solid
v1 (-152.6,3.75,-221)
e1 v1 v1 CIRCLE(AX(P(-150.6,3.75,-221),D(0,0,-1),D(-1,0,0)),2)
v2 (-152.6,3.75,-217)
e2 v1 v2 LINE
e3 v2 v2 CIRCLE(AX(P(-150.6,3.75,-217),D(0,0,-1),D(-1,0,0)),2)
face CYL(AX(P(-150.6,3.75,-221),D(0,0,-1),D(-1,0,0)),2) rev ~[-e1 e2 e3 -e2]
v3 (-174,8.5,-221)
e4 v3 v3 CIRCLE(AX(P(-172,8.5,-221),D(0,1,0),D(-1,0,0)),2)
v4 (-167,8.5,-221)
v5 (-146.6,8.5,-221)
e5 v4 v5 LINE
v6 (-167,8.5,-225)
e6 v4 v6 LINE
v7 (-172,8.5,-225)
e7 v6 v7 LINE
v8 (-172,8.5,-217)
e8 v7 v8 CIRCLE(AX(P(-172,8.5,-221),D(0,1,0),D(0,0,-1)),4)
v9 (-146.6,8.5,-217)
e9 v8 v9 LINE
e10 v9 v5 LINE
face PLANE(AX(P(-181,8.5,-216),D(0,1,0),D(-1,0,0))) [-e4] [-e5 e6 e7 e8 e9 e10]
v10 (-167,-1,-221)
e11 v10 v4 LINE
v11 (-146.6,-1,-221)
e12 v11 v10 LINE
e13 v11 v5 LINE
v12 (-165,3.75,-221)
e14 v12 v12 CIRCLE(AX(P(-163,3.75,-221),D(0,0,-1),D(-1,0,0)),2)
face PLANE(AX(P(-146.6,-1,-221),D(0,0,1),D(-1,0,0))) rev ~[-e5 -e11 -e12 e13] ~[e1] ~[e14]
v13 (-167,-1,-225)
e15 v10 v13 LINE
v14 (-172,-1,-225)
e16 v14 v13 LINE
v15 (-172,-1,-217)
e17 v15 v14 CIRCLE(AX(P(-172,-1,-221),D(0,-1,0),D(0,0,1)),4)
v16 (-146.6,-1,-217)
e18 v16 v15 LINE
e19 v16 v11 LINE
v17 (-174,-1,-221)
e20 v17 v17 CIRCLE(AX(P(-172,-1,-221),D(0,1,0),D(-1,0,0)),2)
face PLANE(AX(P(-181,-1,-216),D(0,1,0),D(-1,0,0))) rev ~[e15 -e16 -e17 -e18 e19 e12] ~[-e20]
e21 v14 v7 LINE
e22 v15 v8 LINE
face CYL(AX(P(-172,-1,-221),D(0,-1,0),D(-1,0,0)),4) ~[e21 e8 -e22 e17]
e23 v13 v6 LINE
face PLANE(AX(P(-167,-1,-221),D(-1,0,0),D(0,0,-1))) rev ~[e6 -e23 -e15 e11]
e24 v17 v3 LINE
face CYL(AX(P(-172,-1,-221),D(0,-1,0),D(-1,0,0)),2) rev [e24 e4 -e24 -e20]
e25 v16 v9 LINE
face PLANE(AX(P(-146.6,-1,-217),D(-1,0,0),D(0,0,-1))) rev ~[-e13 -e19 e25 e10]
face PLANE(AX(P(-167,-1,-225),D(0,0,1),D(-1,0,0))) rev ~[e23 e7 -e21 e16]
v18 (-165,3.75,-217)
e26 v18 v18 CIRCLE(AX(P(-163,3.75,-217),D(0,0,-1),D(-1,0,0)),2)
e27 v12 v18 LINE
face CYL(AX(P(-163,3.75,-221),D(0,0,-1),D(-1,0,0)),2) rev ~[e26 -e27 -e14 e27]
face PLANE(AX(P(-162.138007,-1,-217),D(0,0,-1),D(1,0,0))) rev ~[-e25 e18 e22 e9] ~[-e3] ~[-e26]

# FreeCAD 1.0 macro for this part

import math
import FreeCAD as App
import Part
import Sketcher
from FreeCAD import Vector

doc = App.newDocument("Part")
body = doc.addObject("PartDesign::Body", "Body")

# Sketch on XZ plane
sketch1 = body.newObject("Sketcher::SketchObject", "Sketch")
sketch1.AttachmentSupport = (doc.getObject("XZ_Plane"), [""])
sketch1.MapMode = "FlatFace"
sketch1.AttachmentOffset = App.Placement(Vector(0, 0, 1), App.Rotation())
sketch1.addGeometry(Part.LineSegment(Vector(-146.6, -221, 0), Vector(-167, -221, 0)), False)
sketch1.addGeometry(Part.LineSegment(Vector(-167, -221, 0), Vector(-167, -225, 0)), False)
sketch1.addGeometry(Part.LineSegment(Vector(-167, -225, 0), Vector(-172, -225, 0)), False)
sketch1.addGeometry(Part.ArcOfCircle(Part.Circle(Vector(-172, -221, 0), Vector(0, 0, 1), 4), math.radians(90), math.radians(270)), False)
sketch1.addGeometry(Part.LineSegment(Vector(-172, -217, 0), Vector(-146.6, -217, 0)), False)
sketch1.addGeometry(Part.LineSegment(Vector(-146.6, -217, 0), Vector(-146.6, -221, 0)), False)
sketch1.addGeometry(Part.Circle(Vector(-172, -221, 0), Vector(0, 0, 1), 2), False)
sketch1.addConstraint(Sketcher.Constraint("Coincident", 0, 2, 1, 1))
sketch1.addConstraint(Sketcher.Constraint("Coincident", 1, 2, 2, 1))
sketch1.addConstraint(Sketcher.Constraint("Tangent", 2, 2, 3, 2))
sketch1.addConstraint(Sketcher.Constraint("Tangent", 3, 1, 4, 1))
sketch1.addConstraint(Sketcher.Constraint("Coincident", 4, 2, 5, 1))
sketch1.addConstraint(Sketcher.Constraint("Coincident", 5, 2, 0, 1))
sketch1.addConstraint(Sketcher.Constraint("Horizontal", 0))
sketch1.addConstraint(Sketcher.Constraint("Vertical", 1))
sketch1.addConstraint(Sketcher.Constraint("Horizontal", 2))
sketch1.addConstraint(Sketcher.Constraint("Horizontal", 4))
sketch1.addConstraint(Sketcher.Constraint("Vertical", 5))
sketch1.addConstraint(Sketcher.Constraint("Coincident", 6, 3, 3, 3))
sketch1.addConstraint(Sketcher.Constraint("Horizontal", 6, 3, 0, 2))
sketch1.addConstraint(Sketcher.Constraint("DistanceX", 2, 2, 2, 1, 5.0))
sketch1.addConstraint(Sketcher.Constraint("Diameter", 6, 4.0))
sketch1.addConstraint(Sketcher.Constraint("DistanceX", 4, 1, 4, 2, 25.4))
sketch1.addConstraint(Sketcher.Constraint("Radius", 3, 4.0))
sketch1.addConstraint(Sketcher.Constraint("DistanceX", 3, 3, -1, 1, 172.0))
sketch1.addConstraint(Sketcher.Constraint("DistanceY", 3, 3, -1, 1, 221.0))
pad1 = body.newObject("PartDesign::Pad", "Pad")
pad1.Profile = sketch1
pad1.Length = 9.5
pad1.Reversed = True

# Sketch on XY plane
sketch2 = body.newObject("Sketcher::SketchObject", "Sketch001")
sketch2.AttachmentSupport = (doc.getObject("XY_Plane"), [""])
sketch2.MapMode = "FlatFace"
sketch2.AttachmentOffset = App.Placement(Vector(0, 0, -221), App.Rotation())
sketch2.addGeometry(Part.Circle(Vector(-150.6, 3.8, 0), Vector(0, 0, 1), 2), False)
sketch2.addGeometry(Part.Circle(Vector(-163, 3.8, 0), Vector(0, 0, 1), 2), False)
sketch2.addConstraint(Sketcher.Constraint("Equal", 0, 1))
sketch2.addConstraint(Sketcher.Constraint("Horizontal", 0, 3, 1, 3))
sketch2.addConstraint(Sketcher.Constraint("Diameter", 0, 4.0))
sketch2.addConstraint(Sketcher.Constraint("DistanceX", 1, 3, -1, 1, 163.0))
sketch2.addConstraint(Sketcher.Constraint("DistanceX", 0, 3, -1, 1, 150.6))
sketch2.addConstraint(Sketcher.Constraint("DistanceY", -1, 1, 0, 3, 3.75))
pocket1 = body.newObject("PartDesign::Pocket", "Pocket")
pocket1.Profile = sketch2
pocket1.Length = 9.5
pocket1.Reversed = True

doc.recompute()
